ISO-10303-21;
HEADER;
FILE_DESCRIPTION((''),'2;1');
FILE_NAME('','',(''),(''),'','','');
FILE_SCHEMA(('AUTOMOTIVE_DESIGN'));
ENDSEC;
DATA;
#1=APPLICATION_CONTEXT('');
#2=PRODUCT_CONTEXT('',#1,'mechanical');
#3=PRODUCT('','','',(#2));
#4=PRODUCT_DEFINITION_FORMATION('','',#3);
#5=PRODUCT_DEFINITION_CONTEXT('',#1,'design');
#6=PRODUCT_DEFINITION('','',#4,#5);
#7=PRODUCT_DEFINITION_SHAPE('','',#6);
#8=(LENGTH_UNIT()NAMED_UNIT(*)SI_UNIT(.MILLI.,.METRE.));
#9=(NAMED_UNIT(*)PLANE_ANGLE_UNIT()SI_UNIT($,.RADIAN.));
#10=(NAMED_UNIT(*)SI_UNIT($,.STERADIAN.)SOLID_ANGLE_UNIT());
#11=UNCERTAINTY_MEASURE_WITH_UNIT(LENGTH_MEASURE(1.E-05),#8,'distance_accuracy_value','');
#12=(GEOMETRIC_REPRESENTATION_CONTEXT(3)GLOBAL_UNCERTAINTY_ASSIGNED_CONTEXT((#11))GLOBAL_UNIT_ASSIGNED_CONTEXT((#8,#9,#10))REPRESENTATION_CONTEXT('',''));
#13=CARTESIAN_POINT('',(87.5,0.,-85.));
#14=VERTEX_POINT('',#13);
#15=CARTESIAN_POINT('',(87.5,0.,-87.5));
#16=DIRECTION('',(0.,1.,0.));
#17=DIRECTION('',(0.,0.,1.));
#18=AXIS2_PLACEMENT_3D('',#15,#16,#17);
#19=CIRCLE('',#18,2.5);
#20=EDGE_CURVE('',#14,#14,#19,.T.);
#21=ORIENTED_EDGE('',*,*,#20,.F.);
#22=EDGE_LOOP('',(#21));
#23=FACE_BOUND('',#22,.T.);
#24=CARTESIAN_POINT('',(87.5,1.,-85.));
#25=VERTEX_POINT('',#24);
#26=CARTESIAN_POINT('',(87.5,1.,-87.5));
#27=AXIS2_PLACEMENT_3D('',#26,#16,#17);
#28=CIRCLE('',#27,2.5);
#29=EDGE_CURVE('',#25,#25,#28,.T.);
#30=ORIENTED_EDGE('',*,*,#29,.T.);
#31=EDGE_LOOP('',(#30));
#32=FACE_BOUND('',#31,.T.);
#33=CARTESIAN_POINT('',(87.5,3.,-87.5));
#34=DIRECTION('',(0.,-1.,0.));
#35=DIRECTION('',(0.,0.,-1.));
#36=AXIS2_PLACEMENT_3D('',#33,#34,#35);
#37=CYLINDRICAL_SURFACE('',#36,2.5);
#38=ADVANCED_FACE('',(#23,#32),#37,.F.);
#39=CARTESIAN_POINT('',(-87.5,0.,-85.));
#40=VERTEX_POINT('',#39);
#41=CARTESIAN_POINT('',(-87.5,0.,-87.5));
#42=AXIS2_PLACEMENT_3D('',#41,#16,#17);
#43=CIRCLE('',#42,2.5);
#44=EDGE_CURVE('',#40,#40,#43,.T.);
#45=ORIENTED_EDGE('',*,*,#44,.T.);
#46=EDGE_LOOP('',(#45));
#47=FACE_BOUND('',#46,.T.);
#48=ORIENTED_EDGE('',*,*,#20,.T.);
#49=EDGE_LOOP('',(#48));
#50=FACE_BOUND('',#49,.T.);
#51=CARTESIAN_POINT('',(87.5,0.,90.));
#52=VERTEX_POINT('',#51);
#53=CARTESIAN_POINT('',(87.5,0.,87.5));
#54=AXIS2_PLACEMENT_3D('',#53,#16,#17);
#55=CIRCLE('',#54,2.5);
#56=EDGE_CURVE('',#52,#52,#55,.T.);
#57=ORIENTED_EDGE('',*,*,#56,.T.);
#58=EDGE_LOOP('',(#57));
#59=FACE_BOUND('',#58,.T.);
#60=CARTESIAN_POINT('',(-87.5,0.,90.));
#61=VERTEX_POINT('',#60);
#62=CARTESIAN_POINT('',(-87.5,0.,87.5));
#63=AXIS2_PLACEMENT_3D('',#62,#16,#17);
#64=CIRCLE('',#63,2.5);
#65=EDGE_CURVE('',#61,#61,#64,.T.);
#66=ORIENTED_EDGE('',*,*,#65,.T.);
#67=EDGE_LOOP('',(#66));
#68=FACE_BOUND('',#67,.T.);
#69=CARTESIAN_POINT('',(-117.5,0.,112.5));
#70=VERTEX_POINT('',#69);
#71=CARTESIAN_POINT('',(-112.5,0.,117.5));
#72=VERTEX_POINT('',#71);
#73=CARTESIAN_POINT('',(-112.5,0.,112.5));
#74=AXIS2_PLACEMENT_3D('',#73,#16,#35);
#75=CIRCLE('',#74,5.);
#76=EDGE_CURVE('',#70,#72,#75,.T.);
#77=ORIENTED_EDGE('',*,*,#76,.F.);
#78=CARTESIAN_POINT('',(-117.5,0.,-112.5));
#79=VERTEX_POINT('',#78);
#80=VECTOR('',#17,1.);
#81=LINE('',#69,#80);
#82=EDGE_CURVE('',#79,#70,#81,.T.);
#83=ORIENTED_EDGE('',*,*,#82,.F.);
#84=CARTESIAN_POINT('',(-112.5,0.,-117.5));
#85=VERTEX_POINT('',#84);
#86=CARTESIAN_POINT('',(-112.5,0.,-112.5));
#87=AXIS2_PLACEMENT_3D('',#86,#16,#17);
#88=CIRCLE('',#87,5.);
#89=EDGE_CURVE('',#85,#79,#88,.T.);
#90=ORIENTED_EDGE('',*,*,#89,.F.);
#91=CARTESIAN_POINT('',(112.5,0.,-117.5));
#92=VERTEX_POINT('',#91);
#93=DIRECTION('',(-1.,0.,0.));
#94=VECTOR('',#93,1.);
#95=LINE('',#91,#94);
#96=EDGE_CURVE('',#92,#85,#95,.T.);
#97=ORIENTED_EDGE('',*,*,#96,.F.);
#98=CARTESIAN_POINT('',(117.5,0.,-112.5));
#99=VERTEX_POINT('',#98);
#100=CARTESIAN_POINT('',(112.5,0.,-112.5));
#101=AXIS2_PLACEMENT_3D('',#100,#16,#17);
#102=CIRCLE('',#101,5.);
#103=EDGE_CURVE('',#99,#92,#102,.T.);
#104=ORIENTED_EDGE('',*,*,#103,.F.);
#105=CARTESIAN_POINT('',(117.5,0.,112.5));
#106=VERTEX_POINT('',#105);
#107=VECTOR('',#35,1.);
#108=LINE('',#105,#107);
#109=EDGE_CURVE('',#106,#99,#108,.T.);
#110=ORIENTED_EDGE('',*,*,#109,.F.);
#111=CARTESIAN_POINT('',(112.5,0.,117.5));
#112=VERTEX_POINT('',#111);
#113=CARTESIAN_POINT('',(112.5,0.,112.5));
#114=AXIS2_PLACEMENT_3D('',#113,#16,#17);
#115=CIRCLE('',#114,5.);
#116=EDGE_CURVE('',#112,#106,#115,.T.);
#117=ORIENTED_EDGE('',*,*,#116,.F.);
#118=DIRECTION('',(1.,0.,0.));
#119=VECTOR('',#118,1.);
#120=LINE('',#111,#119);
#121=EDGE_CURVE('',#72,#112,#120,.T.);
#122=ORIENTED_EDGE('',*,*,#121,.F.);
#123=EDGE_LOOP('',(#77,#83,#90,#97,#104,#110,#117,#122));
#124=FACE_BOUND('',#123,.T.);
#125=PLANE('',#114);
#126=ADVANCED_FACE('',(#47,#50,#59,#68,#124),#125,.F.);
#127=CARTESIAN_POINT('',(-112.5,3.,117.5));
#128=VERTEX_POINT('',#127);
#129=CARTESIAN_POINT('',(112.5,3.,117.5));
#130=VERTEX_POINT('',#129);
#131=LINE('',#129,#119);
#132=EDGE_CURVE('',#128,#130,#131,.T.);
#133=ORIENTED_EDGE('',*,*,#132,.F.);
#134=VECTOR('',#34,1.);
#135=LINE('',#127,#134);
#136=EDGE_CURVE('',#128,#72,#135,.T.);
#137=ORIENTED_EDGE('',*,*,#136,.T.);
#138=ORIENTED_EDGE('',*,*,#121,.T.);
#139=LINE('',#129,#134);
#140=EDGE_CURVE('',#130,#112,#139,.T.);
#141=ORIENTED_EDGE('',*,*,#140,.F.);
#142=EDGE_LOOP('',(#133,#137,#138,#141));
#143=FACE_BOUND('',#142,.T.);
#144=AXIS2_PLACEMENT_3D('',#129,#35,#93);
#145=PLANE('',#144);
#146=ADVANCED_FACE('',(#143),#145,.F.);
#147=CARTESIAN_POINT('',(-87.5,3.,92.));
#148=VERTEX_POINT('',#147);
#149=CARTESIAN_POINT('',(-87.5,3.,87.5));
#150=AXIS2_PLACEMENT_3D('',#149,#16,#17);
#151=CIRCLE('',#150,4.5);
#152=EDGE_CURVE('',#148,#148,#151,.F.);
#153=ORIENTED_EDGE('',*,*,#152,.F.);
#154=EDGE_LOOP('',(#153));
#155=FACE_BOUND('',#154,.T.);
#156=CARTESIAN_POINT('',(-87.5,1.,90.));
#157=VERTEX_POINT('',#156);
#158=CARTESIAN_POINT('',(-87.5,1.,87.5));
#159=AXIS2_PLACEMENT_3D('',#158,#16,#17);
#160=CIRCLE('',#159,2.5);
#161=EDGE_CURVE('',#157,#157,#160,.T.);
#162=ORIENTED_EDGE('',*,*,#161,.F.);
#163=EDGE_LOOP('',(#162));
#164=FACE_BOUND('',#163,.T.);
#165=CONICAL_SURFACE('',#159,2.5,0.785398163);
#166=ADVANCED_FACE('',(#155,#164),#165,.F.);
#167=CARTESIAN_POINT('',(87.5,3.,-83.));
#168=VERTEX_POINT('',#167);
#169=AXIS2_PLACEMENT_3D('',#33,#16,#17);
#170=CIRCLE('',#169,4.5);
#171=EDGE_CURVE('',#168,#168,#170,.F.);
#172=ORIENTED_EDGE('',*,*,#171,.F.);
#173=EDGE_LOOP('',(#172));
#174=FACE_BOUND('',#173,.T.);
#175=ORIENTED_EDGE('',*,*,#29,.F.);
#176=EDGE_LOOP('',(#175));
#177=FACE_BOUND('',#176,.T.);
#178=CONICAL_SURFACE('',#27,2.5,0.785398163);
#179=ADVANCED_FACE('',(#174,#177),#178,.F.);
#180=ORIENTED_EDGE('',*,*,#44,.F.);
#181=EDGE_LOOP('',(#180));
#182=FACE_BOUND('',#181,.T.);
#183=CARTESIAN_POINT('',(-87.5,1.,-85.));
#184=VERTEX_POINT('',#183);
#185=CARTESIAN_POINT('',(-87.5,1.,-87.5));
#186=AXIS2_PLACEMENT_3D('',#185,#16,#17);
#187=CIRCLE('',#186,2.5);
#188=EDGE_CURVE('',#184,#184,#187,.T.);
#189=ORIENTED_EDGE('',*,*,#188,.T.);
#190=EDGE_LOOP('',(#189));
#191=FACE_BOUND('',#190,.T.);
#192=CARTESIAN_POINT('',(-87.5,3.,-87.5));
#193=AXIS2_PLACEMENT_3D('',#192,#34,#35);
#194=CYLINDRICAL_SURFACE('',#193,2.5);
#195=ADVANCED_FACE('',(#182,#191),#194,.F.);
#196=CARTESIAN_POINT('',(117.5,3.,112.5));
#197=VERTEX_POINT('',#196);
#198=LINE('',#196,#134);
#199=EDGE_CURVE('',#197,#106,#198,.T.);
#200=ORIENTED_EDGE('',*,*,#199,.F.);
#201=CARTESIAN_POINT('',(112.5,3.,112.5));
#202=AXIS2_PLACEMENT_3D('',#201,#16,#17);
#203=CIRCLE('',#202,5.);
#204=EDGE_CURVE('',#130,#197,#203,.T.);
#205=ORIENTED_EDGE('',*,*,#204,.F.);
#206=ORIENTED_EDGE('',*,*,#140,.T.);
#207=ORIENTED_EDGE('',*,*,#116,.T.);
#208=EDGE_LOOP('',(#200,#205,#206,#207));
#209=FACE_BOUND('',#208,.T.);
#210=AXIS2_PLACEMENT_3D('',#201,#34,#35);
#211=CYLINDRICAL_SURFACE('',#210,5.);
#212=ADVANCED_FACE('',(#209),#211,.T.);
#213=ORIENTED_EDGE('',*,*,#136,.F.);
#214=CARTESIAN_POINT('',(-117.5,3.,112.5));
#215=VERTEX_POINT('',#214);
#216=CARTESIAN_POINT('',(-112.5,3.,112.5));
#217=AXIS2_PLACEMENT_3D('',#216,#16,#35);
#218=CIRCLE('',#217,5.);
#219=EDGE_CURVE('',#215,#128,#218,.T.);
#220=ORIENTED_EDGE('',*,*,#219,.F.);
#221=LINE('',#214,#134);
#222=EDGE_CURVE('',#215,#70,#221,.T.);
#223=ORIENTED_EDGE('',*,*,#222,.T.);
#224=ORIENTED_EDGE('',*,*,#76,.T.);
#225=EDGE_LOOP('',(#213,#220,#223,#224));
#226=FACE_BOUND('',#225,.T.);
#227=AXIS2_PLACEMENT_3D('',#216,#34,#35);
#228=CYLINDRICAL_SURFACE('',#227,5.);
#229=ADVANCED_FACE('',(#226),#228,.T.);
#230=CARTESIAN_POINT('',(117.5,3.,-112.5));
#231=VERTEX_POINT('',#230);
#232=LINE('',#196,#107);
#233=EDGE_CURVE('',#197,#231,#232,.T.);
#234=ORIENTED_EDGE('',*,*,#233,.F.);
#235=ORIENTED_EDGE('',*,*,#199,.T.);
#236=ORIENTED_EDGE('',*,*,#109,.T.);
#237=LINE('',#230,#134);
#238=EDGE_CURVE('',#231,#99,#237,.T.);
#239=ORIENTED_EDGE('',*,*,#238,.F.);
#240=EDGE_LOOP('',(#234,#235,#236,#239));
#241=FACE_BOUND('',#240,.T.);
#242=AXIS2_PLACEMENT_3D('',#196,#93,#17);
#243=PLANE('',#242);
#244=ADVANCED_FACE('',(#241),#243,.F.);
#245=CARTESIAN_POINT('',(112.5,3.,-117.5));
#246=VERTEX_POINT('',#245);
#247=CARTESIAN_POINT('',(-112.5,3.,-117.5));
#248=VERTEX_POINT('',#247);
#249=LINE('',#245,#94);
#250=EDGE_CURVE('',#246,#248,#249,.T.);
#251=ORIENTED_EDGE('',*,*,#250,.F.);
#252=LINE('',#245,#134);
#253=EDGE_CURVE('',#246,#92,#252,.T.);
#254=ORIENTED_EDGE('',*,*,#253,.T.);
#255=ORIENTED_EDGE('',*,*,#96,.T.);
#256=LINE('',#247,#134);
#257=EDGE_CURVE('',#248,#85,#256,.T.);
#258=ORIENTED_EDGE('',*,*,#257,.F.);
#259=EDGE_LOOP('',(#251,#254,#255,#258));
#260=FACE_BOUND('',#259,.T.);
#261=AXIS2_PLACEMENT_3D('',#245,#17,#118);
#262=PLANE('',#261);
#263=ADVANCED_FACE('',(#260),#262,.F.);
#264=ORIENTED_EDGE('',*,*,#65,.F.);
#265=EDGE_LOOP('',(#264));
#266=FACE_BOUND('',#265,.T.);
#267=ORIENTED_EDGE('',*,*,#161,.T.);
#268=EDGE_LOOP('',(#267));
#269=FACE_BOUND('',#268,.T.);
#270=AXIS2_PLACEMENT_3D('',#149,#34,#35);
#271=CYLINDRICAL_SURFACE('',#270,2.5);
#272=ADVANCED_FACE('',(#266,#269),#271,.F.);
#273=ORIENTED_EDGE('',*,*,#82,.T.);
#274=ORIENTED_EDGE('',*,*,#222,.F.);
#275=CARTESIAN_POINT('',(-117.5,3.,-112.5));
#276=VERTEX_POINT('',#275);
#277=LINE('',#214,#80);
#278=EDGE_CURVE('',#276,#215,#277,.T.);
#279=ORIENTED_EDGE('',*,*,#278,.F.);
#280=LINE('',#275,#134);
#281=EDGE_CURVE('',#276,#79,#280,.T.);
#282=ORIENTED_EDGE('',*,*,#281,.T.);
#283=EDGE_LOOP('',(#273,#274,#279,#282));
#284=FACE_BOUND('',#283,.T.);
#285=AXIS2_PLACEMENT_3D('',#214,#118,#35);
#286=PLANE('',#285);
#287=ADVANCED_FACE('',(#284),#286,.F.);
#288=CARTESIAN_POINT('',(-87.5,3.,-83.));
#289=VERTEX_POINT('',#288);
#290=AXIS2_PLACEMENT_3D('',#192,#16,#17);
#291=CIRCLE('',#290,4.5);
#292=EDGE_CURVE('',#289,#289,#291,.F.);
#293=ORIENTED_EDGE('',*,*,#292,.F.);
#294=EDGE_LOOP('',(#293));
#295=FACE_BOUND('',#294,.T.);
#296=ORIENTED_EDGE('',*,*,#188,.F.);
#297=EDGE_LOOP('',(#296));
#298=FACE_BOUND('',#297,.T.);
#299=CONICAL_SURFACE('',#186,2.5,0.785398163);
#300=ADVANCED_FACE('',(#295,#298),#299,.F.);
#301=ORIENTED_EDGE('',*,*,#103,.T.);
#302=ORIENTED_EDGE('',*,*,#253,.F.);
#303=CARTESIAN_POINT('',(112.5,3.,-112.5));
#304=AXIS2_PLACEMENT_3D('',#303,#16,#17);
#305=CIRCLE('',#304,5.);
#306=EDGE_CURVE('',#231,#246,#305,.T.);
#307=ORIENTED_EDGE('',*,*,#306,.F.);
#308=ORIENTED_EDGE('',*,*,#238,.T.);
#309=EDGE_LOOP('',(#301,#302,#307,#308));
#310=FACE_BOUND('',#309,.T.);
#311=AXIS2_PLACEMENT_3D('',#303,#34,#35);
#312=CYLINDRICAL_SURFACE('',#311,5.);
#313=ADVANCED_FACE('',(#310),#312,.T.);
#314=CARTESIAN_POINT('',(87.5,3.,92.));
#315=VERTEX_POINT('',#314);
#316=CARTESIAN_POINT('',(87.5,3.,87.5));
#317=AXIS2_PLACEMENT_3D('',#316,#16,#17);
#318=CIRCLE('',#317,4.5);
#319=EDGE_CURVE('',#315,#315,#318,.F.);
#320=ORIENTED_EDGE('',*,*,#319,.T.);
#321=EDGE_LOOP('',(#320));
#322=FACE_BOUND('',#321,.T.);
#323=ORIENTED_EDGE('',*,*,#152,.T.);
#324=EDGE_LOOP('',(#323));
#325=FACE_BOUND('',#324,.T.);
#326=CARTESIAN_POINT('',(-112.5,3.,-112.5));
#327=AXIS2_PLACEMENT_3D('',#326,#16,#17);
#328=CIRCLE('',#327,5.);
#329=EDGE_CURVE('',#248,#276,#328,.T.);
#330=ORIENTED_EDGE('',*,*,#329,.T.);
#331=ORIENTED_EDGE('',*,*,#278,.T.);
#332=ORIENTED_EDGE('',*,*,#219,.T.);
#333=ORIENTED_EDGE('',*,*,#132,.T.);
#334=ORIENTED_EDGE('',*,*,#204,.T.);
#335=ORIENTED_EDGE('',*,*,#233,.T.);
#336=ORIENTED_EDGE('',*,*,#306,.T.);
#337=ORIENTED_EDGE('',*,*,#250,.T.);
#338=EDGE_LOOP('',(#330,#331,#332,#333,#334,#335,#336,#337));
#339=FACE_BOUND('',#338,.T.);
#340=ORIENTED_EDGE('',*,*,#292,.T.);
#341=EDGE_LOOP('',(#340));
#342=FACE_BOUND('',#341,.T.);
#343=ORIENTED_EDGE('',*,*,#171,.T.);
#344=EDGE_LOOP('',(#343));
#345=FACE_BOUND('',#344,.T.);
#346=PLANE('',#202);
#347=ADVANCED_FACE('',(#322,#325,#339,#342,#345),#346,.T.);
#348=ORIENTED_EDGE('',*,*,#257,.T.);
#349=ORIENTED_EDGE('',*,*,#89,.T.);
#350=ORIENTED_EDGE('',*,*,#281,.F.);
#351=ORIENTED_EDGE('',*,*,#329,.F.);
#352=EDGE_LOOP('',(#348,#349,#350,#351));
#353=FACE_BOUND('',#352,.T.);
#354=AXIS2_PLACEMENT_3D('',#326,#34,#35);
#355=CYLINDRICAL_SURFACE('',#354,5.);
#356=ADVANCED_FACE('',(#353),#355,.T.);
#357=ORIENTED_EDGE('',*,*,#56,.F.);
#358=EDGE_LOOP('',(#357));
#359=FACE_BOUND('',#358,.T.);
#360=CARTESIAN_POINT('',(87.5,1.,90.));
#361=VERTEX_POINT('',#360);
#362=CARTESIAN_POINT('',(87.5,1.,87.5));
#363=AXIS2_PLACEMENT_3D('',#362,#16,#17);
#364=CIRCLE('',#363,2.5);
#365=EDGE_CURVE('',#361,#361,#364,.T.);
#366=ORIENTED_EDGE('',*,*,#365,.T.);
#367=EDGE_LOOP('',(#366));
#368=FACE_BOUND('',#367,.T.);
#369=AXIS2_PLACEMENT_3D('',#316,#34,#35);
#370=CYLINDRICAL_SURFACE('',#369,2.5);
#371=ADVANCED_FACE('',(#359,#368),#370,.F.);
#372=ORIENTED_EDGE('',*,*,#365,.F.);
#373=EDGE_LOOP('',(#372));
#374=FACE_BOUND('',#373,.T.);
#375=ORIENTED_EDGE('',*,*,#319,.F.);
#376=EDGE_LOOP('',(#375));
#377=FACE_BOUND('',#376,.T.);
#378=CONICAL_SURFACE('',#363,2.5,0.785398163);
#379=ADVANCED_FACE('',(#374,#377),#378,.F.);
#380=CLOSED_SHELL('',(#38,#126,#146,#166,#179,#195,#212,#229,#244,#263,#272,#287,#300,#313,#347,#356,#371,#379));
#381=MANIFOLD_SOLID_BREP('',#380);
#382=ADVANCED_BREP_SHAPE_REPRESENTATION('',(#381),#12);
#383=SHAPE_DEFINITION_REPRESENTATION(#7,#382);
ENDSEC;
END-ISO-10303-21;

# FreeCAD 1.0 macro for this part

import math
import FreeCAD as App
import Part
import Sketcher

V = App.Vector
Q = App.Units.Quantity


def edges_at(feature, points):
    """Names of the edges that pass closest to the given points."""
    edges = feature.Shape.Edges
    near = lambda p: min(range(len(edges)), key=lambda i: edges[i].distToShape(Part.Vertex(*p))[0])
    return sorted({f"Edge{near(p) + 1}" for p in points})

doc = App.newDocument("Part")
body = doc.addObject("PartDesign::Body", "Body")

# Sketch on XZ plane
sketch1 = body.newObject("Sketcher::SketchObject", "Sketch")
sketch1.AttachmentSupport = (doc.getObject("XZ_Plane"), [""])
sketch1.MapMode = "FlatFace"
sketch1.addGeometry([
    Part.LineSegment(V(-112.5, 117.5, 0), V(112.5, 117.5, 0)),  # 0
    Part.ArcOfCircle(Part.Circle(V(112.5, 112.5, 0), V(0, 0, 1), 5), math.radians(0), math.radians(90)),  # 1
    Part.LineSegment(V(117.5, 112.5, 0), V(117.5, -112.5, 0)),  # 2
    Part.ArcOfCircle(Part.Circle(V(112.5, -112.5, 0), V(0, 0, 1), 5), math.radians(-90), math.radians(0)),  # 3
    Part.LineSegment(V(112.5, -117.5, 0), V(-112.5, -117.5, 0)),  # 4
    Part.ArcOfCircle(Part.Circle(V(-112.5, -112.5, 0), V(0, 0, 1), 5), math.radians(180), math.radians(270)),  # 5
    Part.LineSegment(V(-117.5, -112.5, 0), V(-117.5, 112.5, 0)),  # 6
    Part.ArcOfCircle(Part.Circle(V(-112.5, 112.5, 0), V(0, 0, 1), 5), math.radians(90), math.radians(180)),  # 7
    Part.Circle(V(87.5, 87.5, 0), V(0, 0, 1), 2.5),  # 8
    Part.Circle(V(-87.5, 87.5, 0), V(0, 0, 1), 2.5),  # 9
    Part.Circle(V(87.5, -87.5, 0), V(0, 0, 1), 2.5),  # 10
    Part.Circle(V(-87.5, -87.5, 0), V(0, 0, 1), 2.5),  # 11
], False)
sketch1.addConstraint([
    Sketcher.Constraint("Tangent", 0, 2, 1, 2),
    Sketcher.Constraint("Tangent", 1, 1, 2, 1),
    Sketcher.Constraint("Tangent", 2, 2, 3, 2),
    Sketcher.Constraint("Tangent", 3, 1, 4, 1),
    Sketcher.Constraint("Tangent", 4, 2, 5, 2),
    Sketcher.Constraint("Tangent", 5, 1, 6, 1),
    Sketcher.Constraint("Tangent", 6, 2, 7, 2),
    Sketcher.Constraint("Tangent", 7, 1, 0, 1),
    Sketcher.Constraint("Horizontal", 0),
    Sketcher.Constraint("Vertical", 2),
    Sketcher.Constraint("Horizontal", 4),
    Sketcher.Constraint("Vertical", 6),
    Sketcher.Constraint("Equal", 1, 3),
    Sketcher.Constraint("Equal", 3, 5),
    Sketcher.Constraint("Equal", 5, 7),
    Sketcher.Constraint("Equal", 8, 9),
    Sketcher.Constraint("Equal", 9, 10),
    Sketcher.Constraint("Equal", 10, 11),
    Sketcher.Constraint("Symmetric", 1, 3, 5, 3, -1, 1),
    Sketcher.Constraint("Symmetric", 9, 3, 10, 3, -1, 1),
    Sketcher.Constraint("Symmetric", 8, 3, 11, 3, -1, 1),
    Sketcher.Constraint("Symmetric", 8, 3, 9, 3, -2),
    Sketcher.Constraint("Equal", 4, 2),
    Sketcher.Constraint("Diameter", 8, Q("5 mm")),
    Sketcher.Constraint("Radius", 1, Q("5 mm")),
    Sketcher.Constraint("DistanceX", 0, 1, 0, 2, Q("225 mm")),
    Sketcher.Constraint("DistanceX", 8, 3, 1, 3, Q("25 mm")),
    Sketcher.Constraint("DistanceY", 8, 3, 1, 3, Q("25 mm")),
])
pad1 = body.newObject("PartDesign::Pad", "Pad")
pad1.Profile = sketch1
pad1.Length = 3
pad1.Reversed = True
doc.recompute()

chamfer = body.newObject("PartDesign::Chamfer", "Chamfer")
chamfer.Base = (pad1, edges_at(pad1, [
    (-87.5, 3, -90),
    (-87.5, 3, 85),
    (87.5, 3, 85),
    (87.5, 3, -90),
]))
chamfer.Size = 2

doc.recompute()
